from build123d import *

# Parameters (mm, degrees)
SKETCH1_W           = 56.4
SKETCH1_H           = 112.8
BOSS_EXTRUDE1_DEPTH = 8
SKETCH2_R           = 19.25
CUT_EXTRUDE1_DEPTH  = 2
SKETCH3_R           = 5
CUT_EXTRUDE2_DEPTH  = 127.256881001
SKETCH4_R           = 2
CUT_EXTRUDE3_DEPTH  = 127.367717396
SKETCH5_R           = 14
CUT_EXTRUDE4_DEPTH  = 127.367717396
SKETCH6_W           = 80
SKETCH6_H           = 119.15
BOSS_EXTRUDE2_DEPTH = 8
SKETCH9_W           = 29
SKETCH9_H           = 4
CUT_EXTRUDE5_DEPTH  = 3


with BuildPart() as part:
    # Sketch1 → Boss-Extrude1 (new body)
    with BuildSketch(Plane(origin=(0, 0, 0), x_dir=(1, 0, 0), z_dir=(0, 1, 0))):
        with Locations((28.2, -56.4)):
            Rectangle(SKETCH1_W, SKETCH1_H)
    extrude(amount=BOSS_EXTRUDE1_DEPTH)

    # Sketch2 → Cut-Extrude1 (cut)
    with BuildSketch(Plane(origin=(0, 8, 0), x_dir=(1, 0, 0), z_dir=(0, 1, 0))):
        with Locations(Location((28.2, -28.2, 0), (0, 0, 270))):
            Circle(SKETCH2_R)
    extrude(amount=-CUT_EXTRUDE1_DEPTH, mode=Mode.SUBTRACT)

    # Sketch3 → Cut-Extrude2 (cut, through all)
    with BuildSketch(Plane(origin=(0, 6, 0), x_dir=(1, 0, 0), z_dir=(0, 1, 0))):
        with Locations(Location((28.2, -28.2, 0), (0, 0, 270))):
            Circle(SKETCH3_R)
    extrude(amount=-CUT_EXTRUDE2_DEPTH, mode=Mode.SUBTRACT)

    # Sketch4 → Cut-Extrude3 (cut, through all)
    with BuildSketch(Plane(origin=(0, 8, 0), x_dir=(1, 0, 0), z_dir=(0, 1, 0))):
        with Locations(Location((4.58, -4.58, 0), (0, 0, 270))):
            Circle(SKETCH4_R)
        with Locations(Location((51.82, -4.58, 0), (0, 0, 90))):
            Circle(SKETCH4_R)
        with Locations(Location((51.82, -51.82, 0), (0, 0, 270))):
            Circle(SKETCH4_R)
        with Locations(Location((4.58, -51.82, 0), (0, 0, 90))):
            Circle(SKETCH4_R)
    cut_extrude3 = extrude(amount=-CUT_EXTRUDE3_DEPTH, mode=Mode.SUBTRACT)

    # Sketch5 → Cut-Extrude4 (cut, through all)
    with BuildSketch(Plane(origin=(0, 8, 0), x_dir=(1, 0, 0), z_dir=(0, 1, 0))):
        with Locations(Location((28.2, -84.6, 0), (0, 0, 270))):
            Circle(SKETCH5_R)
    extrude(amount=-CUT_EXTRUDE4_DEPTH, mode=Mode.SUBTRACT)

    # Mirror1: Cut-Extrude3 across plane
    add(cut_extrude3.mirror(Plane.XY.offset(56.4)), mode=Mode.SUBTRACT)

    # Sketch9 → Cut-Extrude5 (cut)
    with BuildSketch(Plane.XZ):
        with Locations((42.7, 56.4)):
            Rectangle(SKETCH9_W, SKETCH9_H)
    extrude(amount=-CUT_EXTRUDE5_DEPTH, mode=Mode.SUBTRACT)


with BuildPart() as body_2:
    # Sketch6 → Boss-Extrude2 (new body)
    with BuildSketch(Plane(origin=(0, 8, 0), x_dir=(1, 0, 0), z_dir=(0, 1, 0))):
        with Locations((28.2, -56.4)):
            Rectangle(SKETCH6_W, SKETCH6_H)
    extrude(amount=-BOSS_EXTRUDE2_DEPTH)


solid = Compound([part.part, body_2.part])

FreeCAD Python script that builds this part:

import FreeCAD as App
import Part
import Sketcher
Q = App.Units.Quantity


def add_polygon(sketch, points):
    """Adds a closed chain of lines whose ends are joined by coincident constraints."""
    first, n = sketch.GeometryCount, len(points)
    for a, b in zip(points, points[1:] + points[:1]):
        sketch.addGeometry(Part.LineSegment(App.Vector(*a, 0), App.Vector(*b, 0)), False)
    for i in range(n):
        sketch.addConstraint(Sketcher.Constraint("Coincident", first + i, 2, first + (i + 1) % n, 1))

doc = App.newDocument("Part")
body = doc.addObject("PartDesign::Body", "Body")

# Sketch on XZ plane
sketch1 = body.newObject("Sketcher::SketchObject", "Sketch")
sketch1.AttachmentSupport = (doc.getObject("XZ_Plane"), [""])
sketch1.MapMode = "FlatFace"
add_polygon(sketch1, [(0, 0), (0, 112.8), (56.4, 112.8), (56.4, 0)])  # lines 0-3
sketch1.addConstraint([
    Sketcher.Constraint("Vertical", 0),
    Sketcher.Constraint("Horizontal", 1),
    Sketcher.Constraint("Vertical", 2),
    Sketcher.Constraint("Horizontal", 3),
    Sketcher.Constraint("Coincident", 3, 2, -1, 1),
    Sketcher.Constraint("DistanceX", 1, 1, 1, 2, Q("56.4 mm")),
    Sketcher.Constraint("DistanceY", 0, 1, 0, 2, Q("112.8 mm")),
])
pad1 = body.newObject("PartDesign::Pad", "Pad")
pad1.Profile = sketch1
pad1.Length = 8
pad1.Reversed = True

# Sketch on XZ plane
sketch2 = body.newObject("Sketcher::SketchObject", "Sketch001")
sketch2.AttachmentSupport = (doc.getObject("XZ_Plane"), [""])
sketch2.MapMode = "FlatFace"
sketch2.AttachmentOffset = App.Placement(App.Vector(0, 0, -8), App.Rotation())
sketch2.addGeometry(Part.Circle(App.Vector(28.2, 28.2, 0), App.Vector(0, 0, 1), 19.25), False)
sketch2.addConstraint([
    Sketcher.Constraint("Diameter", 0, Q("38.5 mm")),
    Sketcher.Constraint("DistanceX", -1, 1, 0, 3, Q("28.2 mm")),
    Sketcher.Constraint("DistanceY", -1, 1, 0, 3, Q("28.2 mm")),
])
pocket1 = body.newObject("PartDesign::Pocket", "Pocket")
pocket1.Profile = sketch2
pocket1.Length = 2
pocket1.Reversed = True

# Sketch on XZ plane
sketch3 = body.newObject("Sketcher::SketchObject", "Sketch002")
sketch3.AttachmentSupport = (doc.getObject("XZ_Plane"), [""])
sketch3.MapMode = "FlatFace"
sketch3.AttachmentOffset = App.Placement(App.Vector(0, 0, -6), App.Rotation())
sketch3.addGeometry(Part.Circle(App.Vector(28.2, 28.2, 0), App.Vector(0, 0, 1), 5), False)
sketch3.addConstraint([
    Sketcher.Constraint("Diameter", 0, Q("10 mm")),
    Sketcher.Constraint("DistanceX", -1, 1, 0, 3, Q("28.2 mm")),
    Sketcher.Constraint("DistanceY", -1, 1, 0, 3, Q("28.2 mm")),
])
pocket2 = body.newObject("PartDesign::Pocket", "Pocket001")
pocket2.Profile = sketch3
pocket2.Type = "ThroughAll"
pocket2.Reversed = True

# Sketch on XZ plane
sketch4 = body.newObject("Sketcher::SketchObject", "Sketch003")
sketch4.AttachmentSupport = (doc.getObject("XZ_Plane"), [""])
sketch4.MapMode = "FlatFace"
sketch4.AttachmentOffset = App.Placement(App.Vector(0, 0, -8), App.Rotation())
sketch4.addGeometry([
    Part.Circle(App.Vector(4.58, 4.58, 0), App.Vector(0, 0, 1), 2),
    Part.Circle(App.Vector(51.82, 4.58, 0), App.Vector(0, 0, 1), 2),
    Part.Circle(App.Vector(51.82, 51.82, 0), App.Vector(0, 0, 1), 2),
    Part.Circle(App.Vector(4.58, 51.82, 0), App.Vector(0, 0, 1), 2),
], False)
sketch4.addConstraint([
    Sketcher.Constraint("Equal", 0, 1),
    Sketcher.Constraint("Equal", 1, 2),
    Sketcher.Constraint("Equal", 2, 3),
    Sketcher.Constraint("Horizontal", 0, 3, 1, 3),
    Sketcher.Constraint("Horizontal", 2, 3, 3, 3),
    Sketcher.Constraint("Vertical", 1, 3, 2, 3),
    Sketcher.Constraint("Vertical", 0, 3, 3, 3),
    Sketcher.Constraint("Diameter", 0, Q("4 mm")),
    Sketcher.Constraint("DistanceX", -1, 1, 0, 3, Q("4.58 mm")),
    Sketcher.Constraint("DistanceY", -1, 1, 0, 3, Q("4.58 mm")),
    Sketcher.Constraint("DistanceX", -1, 1, 1, 3, Q("51.82 mm")),
    Sketcher.Constraint("DistanceY", -1, 1, 2, 3, Q("51.82 mm")),
])
pocket3 = body.newObject("PartDesign::Pocket", "Pocket002")
pocket3.Profile = sketch4
pocket3.Type = "ThroughAll"
pocket3.Reversed = True

# Sketch on XZ plane
sketch5 = body.newObject("Sketcher::SketchObject", "Sketch004")
sketch5.AttachmentSupport = (doc.getObject("XZ_Plane"), [""])
sketch5.MapMode = "FlatFace"
sketch5.AttachmentOffset = App.Placement(App.Vector(0, 0, -8), App.Rotation())
sketch5.addGeometry(Part.Circle(App.Vector(28.2, 84.6, 0), App.Vector(0, 0, 1), 14), False)
sketch5.addConstraint([
    Sketcher.Constraint("Diameter", 0, Q("28 mm")),
    Sketcher.Constraint("DistanceX", -1, 1, 0, 3, Q("28.2 mm")),
    Sketcher.Constraint("DistanceY", -1, 1, 0, 3, Q("84.6 mm")),
])
pocket4 = body.newObject("PartDesign::Pocket", "Pocket003")
pocket4.Profile = sketch5
pocket4.Type = "ThroughAll"
pocket4.Reversed = True
doc.recompute()

datumplane = body.newObject("PartDesign::Plane", "DatumPlane")
datumplane.AttachmentSupport = (doc.getObject("XY_Plane"), [""])
datumplane.MapMode = "FlatFace"
datumplane.AttachmentOffset = App.Placement(App.Vector(0, 0, 56.4), App.Rotation())
mirrored = body.newObject("PartDesign::Mirrored", "Mirrored")
mirrored.Originals = [pocket3]
mirrored.MirrorPlane = (datumplane, [""])
body.Tip = mirrored

# Sketch on XZ plane
sketch6 = body.newObject("Sketcher::SketchObject", "Sketch005")
sketch6.AttachmentSupport = (doc.getObject("XZ_Plane"), [""])
sketch6.MapMode = "FlatFace"
add_polygon(sketch6, [(28.2, 58.4), (28.2, 54.4), (57.2, 54.4), (57.2, 58.4)])  # lines 0-3
sketch6.addConstraint([
    Sketcher.Constraint("Vertical", 0),
    Sketcher.Constraint("Horizontal", 1),
    Sketcher.Constraint("Vertical", 2),
    Sketcher.Constraint("Horizontal", 3),
    Sketcher.Constraint("DistanceX", 1, 1, 1, 2, Q("29 mm")),
    Sketcher.Constraint("DistanceY", 0, 2, 0, 1, Q("4 mm")),
    Sketcher.Constraint("DistanceX", -1, 1, 0, 2, Q("28.2 mm")),
    Sketcher.Constraint("DistanceY", -1, 1, 0, 2, Q("54.4 mm")),
])
pocket5 = body.newObject("PartDesign::Pocket", "Pocket004")
pocket5.Profile = sketch6
pocket5.Length = 3
body2 = doc.addObject("PartDesign::Body", "Body001")

# Sketch on XZ plane
sketch7 = body2.newObject("Sketcher::SketchObject", "Sketch006")
sketch7.AttachmentSupport = (doc.getObject("XZ_Plane001"), [""])
sketch7.MapMode = "FlatFace"
sketch7.AttachmentOffset = App.Placement(App.Vector(0, 0, -8), App.Rotation())
add_polygon(sketch7, [(-11.8, -3.175), (-11.8, 115.975), (68.2, 115.975), (68.2, -3.175)])  # lines 0-3
sketch7.addConstraint([
    Sketcher.Constraint("Vertical", 0),
    Sketcher.Constraint("Horizontal", 1),
    Sketcher.Constraint("Vertical", 2),
    Sketcher.Constraint("Horizontal", 3),
    Sketcher.Constraint("DistanceX", 1, 1, 1, 2, Q("80 mm")),
    Sketcher.Constraint("DistanceY", 0, 1, 0, 2, Q("119.15 mm")),
    Sketcher.Constraint("DistanceX", 0, 2, -1, 1, Q("11.8 mm")),
    Sketcher.Constraint("DistanceY", -1, 1, 0, 2, Q("115.975 mm")),
])
pad2 = body2.newObject("PartDesign::Pad", "Pad001")
pad2.Profile = sketch7
pad2.Length = 8

doc.recompute()
